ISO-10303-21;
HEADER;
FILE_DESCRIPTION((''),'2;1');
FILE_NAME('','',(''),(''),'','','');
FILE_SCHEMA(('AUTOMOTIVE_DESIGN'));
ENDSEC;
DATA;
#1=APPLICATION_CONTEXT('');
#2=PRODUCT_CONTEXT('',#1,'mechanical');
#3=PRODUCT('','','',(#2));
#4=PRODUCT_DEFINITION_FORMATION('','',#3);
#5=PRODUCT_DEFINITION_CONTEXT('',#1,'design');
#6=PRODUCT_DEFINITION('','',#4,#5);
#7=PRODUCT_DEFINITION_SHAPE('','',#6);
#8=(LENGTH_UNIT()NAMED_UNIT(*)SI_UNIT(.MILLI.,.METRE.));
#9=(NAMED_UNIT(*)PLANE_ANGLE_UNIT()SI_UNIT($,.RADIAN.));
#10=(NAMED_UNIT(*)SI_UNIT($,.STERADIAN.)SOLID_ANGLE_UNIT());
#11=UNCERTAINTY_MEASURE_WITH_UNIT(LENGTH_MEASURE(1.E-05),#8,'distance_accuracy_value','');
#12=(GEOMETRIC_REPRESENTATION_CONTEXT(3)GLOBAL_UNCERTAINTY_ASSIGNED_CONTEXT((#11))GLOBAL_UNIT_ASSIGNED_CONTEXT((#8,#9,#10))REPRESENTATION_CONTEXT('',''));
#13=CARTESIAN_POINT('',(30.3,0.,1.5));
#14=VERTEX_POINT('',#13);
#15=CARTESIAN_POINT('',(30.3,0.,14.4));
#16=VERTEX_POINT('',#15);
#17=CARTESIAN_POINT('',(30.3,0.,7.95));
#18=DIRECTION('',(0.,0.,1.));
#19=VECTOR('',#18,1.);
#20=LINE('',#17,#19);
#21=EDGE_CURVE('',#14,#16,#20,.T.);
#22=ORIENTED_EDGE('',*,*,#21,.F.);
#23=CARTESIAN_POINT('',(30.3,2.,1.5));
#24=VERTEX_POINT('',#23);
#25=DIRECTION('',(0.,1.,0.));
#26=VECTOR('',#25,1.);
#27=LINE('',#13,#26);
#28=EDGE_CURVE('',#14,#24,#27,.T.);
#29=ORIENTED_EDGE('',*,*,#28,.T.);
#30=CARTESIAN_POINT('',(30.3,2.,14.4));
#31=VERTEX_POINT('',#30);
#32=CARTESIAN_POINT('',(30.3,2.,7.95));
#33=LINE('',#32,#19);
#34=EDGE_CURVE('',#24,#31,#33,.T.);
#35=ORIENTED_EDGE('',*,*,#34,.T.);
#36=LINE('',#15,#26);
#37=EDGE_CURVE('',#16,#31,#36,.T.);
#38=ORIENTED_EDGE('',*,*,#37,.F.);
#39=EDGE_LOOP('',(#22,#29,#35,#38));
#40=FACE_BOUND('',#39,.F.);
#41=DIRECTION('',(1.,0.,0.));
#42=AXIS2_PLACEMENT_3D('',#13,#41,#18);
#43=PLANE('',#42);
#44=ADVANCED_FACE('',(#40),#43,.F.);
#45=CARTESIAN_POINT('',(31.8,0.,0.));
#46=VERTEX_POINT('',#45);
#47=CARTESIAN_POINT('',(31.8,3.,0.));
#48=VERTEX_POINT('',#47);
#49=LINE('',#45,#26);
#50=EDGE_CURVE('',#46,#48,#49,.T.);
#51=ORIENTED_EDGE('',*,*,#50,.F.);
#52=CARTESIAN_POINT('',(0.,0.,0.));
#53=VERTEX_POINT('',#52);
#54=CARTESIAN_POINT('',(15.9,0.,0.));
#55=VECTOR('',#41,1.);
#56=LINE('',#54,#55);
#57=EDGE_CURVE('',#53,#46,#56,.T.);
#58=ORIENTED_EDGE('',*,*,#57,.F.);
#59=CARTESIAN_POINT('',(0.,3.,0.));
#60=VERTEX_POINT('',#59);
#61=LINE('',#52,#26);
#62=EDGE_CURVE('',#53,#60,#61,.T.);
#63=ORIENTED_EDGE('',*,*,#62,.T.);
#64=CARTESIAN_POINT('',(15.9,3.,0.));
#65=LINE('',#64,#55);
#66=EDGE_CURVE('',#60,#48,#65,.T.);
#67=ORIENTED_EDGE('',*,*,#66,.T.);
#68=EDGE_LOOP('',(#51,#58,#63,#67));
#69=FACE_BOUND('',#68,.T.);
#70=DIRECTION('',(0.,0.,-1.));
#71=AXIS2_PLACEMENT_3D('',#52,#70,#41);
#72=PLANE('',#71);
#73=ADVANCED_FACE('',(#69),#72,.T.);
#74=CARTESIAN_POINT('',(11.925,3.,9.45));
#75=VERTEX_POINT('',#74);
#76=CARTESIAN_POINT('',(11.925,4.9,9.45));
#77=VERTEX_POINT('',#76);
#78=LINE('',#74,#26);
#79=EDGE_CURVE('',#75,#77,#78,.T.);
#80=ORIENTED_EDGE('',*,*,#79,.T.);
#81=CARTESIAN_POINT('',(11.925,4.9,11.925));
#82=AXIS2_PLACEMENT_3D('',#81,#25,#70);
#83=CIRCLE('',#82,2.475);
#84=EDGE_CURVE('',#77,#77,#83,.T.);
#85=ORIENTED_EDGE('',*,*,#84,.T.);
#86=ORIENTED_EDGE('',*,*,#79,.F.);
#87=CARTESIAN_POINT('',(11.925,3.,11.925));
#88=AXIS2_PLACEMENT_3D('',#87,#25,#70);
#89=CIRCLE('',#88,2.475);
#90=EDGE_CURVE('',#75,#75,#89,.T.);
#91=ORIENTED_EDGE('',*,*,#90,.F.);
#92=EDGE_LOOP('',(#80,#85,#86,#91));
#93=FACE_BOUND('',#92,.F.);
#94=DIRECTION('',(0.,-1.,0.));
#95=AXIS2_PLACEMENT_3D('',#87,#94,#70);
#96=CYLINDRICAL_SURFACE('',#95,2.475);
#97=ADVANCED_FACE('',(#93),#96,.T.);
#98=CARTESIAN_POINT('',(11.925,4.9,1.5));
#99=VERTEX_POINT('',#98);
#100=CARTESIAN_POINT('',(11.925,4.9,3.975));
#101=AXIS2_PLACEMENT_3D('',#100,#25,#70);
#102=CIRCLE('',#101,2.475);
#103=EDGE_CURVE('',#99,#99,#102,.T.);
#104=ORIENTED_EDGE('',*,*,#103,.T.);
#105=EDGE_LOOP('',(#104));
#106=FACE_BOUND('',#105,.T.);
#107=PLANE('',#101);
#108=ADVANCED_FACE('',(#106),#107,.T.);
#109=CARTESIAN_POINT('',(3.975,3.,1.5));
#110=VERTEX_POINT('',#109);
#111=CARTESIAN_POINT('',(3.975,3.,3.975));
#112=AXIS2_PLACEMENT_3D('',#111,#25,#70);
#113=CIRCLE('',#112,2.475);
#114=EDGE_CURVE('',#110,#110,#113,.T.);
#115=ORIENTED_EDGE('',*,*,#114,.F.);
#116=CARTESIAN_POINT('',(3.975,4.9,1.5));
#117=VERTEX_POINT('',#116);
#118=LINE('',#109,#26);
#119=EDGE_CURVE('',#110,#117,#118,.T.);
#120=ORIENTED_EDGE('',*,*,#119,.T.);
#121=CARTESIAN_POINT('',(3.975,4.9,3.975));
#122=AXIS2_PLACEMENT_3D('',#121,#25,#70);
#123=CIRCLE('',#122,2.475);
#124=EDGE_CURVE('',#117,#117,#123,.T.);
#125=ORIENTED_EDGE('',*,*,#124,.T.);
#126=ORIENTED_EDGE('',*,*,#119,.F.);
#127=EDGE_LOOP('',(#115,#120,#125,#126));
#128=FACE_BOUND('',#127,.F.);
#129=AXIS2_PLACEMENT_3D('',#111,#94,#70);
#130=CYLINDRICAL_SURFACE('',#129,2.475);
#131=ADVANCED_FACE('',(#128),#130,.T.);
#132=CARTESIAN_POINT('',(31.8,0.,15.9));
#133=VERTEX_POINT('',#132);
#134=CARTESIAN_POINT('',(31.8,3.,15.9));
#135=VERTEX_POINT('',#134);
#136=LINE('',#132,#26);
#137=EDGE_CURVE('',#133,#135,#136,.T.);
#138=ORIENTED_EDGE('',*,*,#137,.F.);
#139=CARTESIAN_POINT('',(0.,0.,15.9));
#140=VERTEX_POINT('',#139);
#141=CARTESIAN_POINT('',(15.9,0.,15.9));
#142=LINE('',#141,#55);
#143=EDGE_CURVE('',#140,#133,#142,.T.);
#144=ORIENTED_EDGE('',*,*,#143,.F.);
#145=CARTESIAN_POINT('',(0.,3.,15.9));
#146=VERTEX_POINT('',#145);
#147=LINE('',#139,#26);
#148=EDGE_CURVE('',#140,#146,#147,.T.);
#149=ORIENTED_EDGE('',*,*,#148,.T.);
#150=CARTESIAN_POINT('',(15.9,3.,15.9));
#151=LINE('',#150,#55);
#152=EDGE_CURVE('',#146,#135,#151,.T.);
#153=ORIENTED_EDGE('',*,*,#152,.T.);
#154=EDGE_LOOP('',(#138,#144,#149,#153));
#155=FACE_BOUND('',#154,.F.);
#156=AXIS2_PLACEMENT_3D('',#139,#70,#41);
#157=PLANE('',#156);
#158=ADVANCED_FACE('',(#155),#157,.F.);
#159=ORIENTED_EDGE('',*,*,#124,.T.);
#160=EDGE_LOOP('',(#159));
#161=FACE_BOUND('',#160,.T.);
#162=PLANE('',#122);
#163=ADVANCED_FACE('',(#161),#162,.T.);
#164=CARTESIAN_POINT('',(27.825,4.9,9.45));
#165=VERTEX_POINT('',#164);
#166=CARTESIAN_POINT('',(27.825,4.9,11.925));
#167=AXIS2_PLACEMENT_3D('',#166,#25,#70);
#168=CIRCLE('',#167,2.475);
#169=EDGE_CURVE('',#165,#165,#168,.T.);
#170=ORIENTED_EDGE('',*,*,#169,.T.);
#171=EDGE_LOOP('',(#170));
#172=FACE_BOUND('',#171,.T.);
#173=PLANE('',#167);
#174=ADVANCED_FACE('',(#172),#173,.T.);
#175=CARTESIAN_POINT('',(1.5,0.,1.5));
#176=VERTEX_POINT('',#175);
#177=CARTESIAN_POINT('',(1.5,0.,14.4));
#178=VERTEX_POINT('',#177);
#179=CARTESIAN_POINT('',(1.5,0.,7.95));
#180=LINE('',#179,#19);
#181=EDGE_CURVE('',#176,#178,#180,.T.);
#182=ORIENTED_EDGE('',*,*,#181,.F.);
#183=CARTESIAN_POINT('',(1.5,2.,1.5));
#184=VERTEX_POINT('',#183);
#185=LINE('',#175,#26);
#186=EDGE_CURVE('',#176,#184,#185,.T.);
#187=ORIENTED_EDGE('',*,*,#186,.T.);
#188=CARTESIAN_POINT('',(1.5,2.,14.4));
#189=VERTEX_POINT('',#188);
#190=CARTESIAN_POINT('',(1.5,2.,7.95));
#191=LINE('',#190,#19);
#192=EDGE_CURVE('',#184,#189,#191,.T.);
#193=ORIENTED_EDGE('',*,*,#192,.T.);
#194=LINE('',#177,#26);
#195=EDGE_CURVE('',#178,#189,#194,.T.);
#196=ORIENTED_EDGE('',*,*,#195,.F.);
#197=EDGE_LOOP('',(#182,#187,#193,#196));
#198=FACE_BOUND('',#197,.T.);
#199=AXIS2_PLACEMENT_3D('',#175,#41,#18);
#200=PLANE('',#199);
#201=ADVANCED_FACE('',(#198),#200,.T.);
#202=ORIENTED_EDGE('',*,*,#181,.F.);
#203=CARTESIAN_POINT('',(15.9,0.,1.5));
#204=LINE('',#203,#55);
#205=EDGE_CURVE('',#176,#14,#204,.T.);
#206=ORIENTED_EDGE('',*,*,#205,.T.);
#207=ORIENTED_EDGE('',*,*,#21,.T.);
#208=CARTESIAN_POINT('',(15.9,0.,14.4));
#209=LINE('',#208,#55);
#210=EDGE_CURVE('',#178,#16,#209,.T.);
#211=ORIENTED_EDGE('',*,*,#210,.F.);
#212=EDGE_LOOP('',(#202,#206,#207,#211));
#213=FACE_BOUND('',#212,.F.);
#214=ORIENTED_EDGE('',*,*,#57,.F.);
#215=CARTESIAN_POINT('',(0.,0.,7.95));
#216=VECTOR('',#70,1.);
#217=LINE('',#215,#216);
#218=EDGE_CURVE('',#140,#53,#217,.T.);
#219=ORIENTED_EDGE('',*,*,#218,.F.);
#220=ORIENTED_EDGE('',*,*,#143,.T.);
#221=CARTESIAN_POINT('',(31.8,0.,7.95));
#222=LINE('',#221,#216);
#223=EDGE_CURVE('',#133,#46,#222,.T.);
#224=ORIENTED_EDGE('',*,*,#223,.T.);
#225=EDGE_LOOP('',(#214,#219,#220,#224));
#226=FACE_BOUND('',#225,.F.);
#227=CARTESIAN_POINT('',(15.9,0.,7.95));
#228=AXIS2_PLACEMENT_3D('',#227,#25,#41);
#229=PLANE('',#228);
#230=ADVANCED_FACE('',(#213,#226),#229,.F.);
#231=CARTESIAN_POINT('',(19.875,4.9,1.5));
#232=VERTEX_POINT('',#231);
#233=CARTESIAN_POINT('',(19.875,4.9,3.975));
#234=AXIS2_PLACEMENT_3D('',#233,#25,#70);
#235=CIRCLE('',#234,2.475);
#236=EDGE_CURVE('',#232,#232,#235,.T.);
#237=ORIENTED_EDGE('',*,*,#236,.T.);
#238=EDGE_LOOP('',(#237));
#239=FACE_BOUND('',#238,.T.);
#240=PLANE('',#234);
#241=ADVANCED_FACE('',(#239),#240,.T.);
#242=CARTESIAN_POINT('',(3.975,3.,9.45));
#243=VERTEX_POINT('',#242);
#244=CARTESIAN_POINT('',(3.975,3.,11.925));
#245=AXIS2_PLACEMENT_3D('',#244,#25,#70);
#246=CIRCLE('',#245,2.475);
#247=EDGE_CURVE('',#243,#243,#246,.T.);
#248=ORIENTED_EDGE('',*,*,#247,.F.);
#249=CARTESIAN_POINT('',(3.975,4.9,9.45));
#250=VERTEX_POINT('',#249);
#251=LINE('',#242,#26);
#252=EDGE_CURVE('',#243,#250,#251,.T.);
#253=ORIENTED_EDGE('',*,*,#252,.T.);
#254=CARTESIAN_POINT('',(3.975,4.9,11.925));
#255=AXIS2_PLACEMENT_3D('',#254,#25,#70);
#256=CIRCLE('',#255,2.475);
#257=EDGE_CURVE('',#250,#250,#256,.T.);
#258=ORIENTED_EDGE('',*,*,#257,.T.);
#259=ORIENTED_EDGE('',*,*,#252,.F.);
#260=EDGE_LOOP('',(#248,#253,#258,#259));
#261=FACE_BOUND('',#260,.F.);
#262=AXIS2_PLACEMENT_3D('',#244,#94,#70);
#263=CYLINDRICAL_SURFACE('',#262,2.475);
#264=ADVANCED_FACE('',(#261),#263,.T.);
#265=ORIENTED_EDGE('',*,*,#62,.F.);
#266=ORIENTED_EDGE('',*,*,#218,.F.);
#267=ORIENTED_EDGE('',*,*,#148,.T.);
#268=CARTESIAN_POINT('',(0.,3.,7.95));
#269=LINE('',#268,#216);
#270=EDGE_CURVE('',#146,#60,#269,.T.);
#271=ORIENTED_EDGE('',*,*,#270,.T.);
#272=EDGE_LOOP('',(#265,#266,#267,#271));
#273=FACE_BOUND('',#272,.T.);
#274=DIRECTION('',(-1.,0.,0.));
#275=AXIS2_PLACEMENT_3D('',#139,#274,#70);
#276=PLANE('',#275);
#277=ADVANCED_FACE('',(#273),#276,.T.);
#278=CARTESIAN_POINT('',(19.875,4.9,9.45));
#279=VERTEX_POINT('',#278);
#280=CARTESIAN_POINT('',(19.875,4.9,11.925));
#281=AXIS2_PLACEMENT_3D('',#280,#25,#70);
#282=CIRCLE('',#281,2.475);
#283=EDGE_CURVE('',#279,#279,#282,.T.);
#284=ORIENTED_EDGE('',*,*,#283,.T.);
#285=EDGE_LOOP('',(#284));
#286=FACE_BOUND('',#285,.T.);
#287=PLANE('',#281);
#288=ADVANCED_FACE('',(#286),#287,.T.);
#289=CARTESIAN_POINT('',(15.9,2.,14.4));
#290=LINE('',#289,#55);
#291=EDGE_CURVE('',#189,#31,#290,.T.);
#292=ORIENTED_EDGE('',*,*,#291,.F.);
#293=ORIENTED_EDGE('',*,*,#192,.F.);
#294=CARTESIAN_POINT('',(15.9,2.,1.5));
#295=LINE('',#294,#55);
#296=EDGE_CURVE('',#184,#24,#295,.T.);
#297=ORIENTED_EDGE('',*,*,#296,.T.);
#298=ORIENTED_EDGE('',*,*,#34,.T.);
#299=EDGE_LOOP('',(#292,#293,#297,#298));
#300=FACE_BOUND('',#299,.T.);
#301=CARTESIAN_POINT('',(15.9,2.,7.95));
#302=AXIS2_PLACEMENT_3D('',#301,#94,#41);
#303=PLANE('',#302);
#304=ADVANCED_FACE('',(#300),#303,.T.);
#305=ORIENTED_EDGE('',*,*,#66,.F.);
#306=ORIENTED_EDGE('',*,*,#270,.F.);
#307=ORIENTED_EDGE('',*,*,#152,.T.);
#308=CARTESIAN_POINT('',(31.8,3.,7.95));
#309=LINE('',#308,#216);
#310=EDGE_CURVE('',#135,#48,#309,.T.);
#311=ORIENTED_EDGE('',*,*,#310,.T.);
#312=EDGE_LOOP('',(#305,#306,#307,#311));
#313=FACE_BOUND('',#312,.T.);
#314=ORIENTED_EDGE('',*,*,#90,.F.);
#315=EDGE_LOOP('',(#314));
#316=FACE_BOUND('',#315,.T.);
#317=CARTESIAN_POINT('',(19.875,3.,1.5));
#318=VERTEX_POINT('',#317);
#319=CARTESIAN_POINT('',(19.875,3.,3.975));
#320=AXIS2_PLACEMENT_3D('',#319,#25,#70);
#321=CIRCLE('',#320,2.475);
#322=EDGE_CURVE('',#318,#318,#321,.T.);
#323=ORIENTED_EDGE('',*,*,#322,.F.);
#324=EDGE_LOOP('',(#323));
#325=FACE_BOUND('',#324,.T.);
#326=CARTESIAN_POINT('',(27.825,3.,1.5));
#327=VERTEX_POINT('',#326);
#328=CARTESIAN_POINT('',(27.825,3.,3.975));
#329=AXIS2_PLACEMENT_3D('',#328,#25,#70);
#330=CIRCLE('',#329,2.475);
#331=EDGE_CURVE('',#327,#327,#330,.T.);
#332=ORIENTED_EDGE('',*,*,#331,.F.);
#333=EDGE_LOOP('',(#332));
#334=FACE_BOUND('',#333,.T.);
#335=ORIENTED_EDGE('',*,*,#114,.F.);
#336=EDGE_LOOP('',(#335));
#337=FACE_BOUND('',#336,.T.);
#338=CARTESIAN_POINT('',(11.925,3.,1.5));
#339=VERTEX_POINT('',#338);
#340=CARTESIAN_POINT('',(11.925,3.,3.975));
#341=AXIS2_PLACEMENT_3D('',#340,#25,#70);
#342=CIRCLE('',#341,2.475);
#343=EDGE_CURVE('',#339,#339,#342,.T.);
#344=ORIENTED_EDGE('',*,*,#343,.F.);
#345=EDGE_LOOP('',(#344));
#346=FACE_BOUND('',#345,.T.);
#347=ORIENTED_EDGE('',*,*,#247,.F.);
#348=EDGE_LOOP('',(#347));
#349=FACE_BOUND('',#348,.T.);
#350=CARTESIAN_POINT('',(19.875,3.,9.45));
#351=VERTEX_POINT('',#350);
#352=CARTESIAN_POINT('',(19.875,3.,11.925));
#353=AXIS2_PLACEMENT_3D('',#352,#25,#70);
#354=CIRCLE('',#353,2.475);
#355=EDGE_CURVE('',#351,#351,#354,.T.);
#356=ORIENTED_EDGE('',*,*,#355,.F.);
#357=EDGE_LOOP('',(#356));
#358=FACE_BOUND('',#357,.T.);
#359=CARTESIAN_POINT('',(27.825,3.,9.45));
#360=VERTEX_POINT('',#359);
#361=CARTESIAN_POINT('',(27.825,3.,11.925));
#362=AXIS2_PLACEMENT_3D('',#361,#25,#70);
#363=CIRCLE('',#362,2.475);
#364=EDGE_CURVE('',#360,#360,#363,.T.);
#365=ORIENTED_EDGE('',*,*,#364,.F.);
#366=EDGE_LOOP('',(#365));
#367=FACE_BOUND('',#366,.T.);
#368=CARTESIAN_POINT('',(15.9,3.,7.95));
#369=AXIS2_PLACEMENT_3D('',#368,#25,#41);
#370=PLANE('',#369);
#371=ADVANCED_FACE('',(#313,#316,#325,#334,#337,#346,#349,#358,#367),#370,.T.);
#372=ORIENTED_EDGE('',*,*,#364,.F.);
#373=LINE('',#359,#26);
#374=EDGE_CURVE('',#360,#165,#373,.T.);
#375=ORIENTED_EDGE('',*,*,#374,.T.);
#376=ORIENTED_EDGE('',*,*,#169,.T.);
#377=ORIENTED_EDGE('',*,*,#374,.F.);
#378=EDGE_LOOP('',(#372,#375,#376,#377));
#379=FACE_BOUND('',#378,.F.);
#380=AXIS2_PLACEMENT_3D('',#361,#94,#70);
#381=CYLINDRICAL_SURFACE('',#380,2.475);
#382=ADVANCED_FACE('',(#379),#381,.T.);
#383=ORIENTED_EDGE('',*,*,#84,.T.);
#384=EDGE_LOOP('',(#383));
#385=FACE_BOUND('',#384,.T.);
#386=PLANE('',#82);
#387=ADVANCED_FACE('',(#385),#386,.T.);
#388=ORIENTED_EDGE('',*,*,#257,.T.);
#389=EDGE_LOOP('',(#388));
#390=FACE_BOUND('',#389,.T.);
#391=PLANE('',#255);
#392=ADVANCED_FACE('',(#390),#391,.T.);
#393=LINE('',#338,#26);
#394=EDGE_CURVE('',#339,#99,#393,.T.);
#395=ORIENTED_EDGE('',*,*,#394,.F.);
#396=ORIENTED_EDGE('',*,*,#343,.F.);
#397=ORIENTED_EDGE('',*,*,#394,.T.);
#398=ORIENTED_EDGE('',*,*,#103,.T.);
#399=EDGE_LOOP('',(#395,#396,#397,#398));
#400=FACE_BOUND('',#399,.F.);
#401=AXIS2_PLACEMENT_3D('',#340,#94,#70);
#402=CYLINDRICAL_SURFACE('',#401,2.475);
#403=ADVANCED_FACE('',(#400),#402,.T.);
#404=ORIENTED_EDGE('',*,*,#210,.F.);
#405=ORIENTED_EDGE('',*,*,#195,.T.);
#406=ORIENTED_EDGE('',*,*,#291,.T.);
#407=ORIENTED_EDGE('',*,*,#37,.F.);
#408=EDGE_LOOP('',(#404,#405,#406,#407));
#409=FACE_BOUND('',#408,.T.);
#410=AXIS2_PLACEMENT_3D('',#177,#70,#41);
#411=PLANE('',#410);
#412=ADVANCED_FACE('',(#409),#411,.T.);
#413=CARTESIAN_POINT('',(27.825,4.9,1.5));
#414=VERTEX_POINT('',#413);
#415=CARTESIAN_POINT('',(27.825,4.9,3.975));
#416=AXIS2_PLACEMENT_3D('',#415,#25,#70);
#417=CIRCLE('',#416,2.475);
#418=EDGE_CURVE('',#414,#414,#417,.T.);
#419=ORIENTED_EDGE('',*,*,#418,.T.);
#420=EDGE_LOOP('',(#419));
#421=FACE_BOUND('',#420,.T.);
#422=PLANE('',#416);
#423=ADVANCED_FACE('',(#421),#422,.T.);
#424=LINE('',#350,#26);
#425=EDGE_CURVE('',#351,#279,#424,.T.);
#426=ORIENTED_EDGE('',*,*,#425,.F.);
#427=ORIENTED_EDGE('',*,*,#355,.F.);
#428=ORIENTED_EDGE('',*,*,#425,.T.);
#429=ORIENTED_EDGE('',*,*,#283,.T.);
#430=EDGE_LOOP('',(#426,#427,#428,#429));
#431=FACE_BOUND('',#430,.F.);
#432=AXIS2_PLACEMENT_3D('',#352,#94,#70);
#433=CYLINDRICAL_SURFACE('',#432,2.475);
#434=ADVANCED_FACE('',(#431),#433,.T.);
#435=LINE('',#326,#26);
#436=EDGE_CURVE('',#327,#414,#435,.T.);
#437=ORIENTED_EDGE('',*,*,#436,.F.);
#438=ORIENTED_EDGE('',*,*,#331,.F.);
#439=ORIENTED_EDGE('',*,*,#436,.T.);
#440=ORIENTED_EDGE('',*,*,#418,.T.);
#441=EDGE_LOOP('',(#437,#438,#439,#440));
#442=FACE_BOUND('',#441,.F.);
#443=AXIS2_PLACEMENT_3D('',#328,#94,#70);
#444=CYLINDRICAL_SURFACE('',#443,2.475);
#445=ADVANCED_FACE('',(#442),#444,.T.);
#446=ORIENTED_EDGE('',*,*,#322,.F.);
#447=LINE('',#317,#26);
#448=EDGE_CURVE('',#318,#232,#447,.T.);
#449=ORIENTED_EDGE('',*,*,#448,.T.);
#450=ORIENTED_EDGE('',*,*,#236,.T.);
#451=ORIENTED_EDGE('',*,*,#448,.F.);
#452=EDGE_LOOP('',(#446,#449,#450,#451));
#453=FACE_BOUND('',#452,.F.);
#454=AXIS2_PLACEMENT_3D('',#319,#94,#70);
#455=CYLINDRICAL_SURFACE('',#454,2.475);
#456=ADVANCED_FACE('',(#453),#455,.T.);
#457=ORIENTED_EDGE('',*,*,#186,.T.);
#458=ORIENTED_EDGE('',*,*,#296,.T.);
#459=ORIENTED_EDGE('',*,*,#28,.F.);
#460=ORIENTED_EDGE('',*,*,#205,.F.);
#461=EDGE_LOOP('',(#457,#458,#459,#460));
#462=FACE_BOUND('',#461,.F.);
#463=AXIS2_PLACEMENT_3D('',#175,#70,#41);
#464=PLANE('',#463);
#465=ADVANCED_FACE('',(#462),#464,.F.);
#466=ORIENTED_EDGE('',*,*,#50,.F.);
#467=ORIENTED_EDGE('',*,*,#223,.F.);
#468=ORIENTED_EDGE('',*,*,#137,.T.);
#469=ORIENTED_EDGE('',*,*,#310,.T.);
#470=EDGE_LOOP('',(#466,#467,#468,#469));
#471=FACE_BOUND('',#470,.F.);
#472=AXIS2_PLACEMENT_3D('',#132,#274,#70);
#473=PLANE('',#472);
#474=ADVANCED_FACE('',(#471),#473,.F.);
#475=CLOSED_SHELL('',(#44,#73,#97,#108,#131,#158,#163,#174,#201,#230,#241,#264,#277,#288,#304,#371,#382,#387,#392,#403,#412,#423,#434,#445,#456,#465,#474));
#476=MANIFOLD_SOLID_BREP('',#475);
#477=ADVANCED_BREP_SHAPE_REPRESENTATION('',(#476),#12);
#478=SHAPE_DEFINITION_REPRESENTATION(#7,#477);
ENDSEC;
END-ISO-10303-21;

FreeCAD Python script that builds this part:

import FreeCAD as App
import Part
import Sketcher

V = App.Vector


def add_polygon(sketch, points):
    """Adds a closed chain of lines whose ends are joined by coincident constraints."""
    first, n = sketch.GeometryCount, len(points)
    for a, b in zip(points, points[1:] + points[:1]):
        sketch.addGeometry(Part.LineSegment(App.Vector(*a, 0), App.Vector(*b, 0)), False)
    for i in range(n):
        sketch.addConstraint(Sketcher.Constraint("Coincident", first + i, 2, first + (i + 1) % n, 1))

doc = App.newDocument("Part")
body = doc.addObject("PartDesign::Body", "Body")

# Sketch on XZ plane
sketch1 = body.newObject("Sketcher::SketchObject", "Sketch")
sketch1.AttachmentSupport = (doc.getObject("XZ_Plane"), [""])
sketch1.MapMode = "FlatFace"
add_polygon(sketch1, [(0, 0), (0, 16), (32, 16), (32, 0)])  # lines 0-3
sketch1.addConstraint(Sketcher.Constraint("Vertical", 0))
sketch1.addConstraint(Sketcher.Constraint("Horizontal", 1))
sketch1.addConstraint(Sketcher.Constraint("Vertical", 2))
sketch1.addConstraint(Sketcher.Constraint("Horizontal", 3))
sketch1.addConstraint(Sketcher.Constraint("Coincident", 3, 2, -1, 1))
sketch1.addConstraint(Sketcher.Constraint("DistanceX", 1, 1, 1, 2, 31.8))
sketch1.addConstraint(Sketcher.Constraint("DistanceY", 0, 1, 0, 2, 15.9))
pad1 = body.newObject("PartDesign::Pad", "Pad")
pad1.Profile = sketch1
pad1.Length = 3
pad1.Reversed = True

# Sketch on XZ plane
sketch2 = body.newObject("Sketcher::SketchObject", "Sketch001")
sketch2.AttachmentSupport = (doc.getObject("XZ_Plane"), [""])
sketch2.MapMode = "FlatFace"
sketch2.AttachmentOffset = App.Placement(V(0, 0, -3), App.Rotation())
sketch2.addGeometry(Part.Circle(V(4, 4, 0), V(0, 0, 1), 2.5), False)
sketch2.addGeometry(Part.Circle(V(11.9, 4, 0), V(0, 0, 1), 2.5), False)
sketch2.addGeometry(Part.Circle(V(19.9, 4, 0), V(0, 0, 1), 2.5), False)
sketch2.addGeometry(Part.Circle(V(27.8, 4, 0), V(0, 0, 1), 2.5), False)
sketch2.addGeometry(Part.Circle(V(27.8, 11.9, 0), V(0, 0, 1), 2.5), False)
sketch2.addGeometry(Part.Circle(V(19.9, 11.9, 0), V(0, 0, 1), 2.5), False)
sketch2.addGeometry(Part.Circle(V(11.9, 11.9, 0), V(0, 0, 1), 2.5), False)
sketch2.addGeometry(Part.Circle(V(4, 11.9, 0), V(0, 0, 1), 2.5), False)
sketch2.addConstraint(Sketcher.Constraint("Equal", 0, 1))
sketch2.addConstraint(Sketcher.Constraint("Equal", 1, 2))
sketch2.addConstraint(Sketcher.Constraint("Equal", 2, 3))
sketch2.addConstraint(Sketcher.Constraint("Equal", 3, 4))
sketch2.addConstraint(Sketcher.Constraint("Equal", 4, 5))
sketch2.addConstraint(Sketcher.Constraint("Equal", 5, 6))
sketch2.addConstraint(Sketcher.Constraint("Equal", 6, 7))
sketch2.addConstraint(Sketcher.Constraint("Horizontal", 0, 3, 1, 3))
sketch2.addConstraint(Sketcher.Constraint("Horizontal", 1, 3, 2, 3))
sketch2.addConstraint(Sketcher.Constraint("Horizontal", 2, 3, 3, 3))
sketch2.addConstraint(Sketcher.Constraint("Horizontal", 4, 3, 5, 3))
sketch2.addConstraint(Sketcher.Constraint("Horizontal", 5, 3, 6, 3))
sketch2.addConstraint(Sketcher.Constraint("Horizontal", 6, 3, 7, 3))
sketch2.addConstraint(Sketcher.Constraint("Vertical", 3, 3, 4, 3))
sketch2.addConstraint(Sketcher.Constraint("Vertical", 2, 3, 5, 3))
sketch2.addConstraint(Sketcher.Constraint("Vertical", 1, 3, 6, 3))
sketch2.addConstraint(Sketcher.Constraint("Vertical", 0, 3, 7, 3))
sketch2.addConstraint(Sketcher.Constraint("Diameter", 0, 4.95))
sketch2.addConstraint(Sketcher.Constraint("DistanceX", 0, 3, 2, 3, 15.9))
sketch2.addConstraint(Sketcher.Constraint("DistanceX", 1, 3, 3, 3, 15.9))
sketch2.addConstraint(Sketcher.Constraint("DistanceX", 0, 3, 1, 3, 7.95))
sketch2.addConstraint(Sketcher.Constraint("DistanceY", 3, 3, 4, 3, 7.95))
sketch2.addConstraint(Sketcher.Constraint("DistanceX", -1, 1, 0, 3, 3.975))
sketch2.addConstraint(Sketcher.Constraint("DistanceY", -1, 1, 0, 3, 3.975))
pad2 = body.newObject("PartDesign::Pad", "Pad001")
pad2.Profile = sketch2
pad2.Length = 1.9
pad2.Reversed = True

# Sketch on XZ plane
sketch3 = body.newObject("Sketcher::SketchObject", "Sketch002")
sketch3.AttachmentSupport = (doc.getObject("XZ_Plane"), [""])
sketch3.MapMode = "FlatFace"
add_polygon(sketch3, [(2, 14), (2, 2), (30, 2), (30, 14)])  # lines 0-3
sketch3.addConstraint(Sketcher.Constraint("Vertical", 0))
sketch3.addConstraint(Sketcher.Constraint("Horizontal", 1))
sketch3.addConstraint(Sketcher.Constraint("Vertical", 2))
sketch3.addConstraint(Sketcher.Constraint("Horizontal", 3))
sketch3.addConstraint(Sketcher.Constraint("DistanceX", 1, 1, 1, 2, 28.8))
sketch3.addConstraint(Sketcher.Constraint("DistanceY", 0, 2, 0, 1, 12.9))
sketch3.addConstraint(Sketcher.Constraint("DistanceX", -1, 1, 0, 2, 1.5))
sketch3.addConstraint(Sketcher.Constraint("DistanceY", -1, 1, 0, 2, 1.5))
pocket1 = body.newObject("PartDesign::Pocket", "Pocket")
pocket1.Profile = sketch3
pocket1.Length = 2

doc.recompute()
